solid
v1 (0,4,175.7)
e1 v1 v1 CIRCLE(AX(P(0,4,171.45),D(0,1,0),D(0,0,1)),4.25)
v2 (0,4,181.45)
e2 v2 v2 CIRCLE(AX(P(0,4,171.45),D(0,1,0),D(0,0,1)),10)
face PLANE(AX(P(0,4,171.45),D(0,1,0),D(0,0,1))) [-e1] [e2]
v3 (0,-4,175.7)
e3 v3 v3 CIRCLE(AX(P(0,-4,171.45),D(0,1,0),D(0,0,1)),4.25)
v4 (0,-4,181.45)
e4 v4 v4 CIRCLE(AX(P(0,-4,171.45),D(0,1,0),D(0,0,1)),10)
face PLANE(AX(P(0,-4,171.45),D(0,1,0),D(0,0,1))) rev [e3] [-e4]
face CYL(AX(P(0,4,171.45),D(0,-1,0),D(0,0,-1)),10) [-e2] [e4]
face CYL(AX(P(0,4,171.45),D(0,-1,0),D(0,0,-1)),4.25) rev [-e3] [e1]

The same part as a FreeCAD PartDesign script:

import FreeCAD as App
import Part
import Sketcher

V = App.Vector
Q = App.Units.Quantity

doc = App.newDocument("Part")
body = doc.addObject("PartDesign::Body", "Body")

# Sketch on XZ plane
sketch1 = body.newObject("Sketcher::SketchObject", "Sketch")
sketch1.AttachmentSupport = (doc.getObject("XZ_Plane"), [""])
sketch1.MapMode = "FlatFace"
sketch1.AttachmentOffset = App.Placement(V(0, 0, 4), App.Rotation())
sketch1.addGeometry(Part.Circle(V(0, 171, 0), V(0, 0, 1), 10), False)
sketch1.addConstraint([
    Sketcher.Constraint("PointOnObject", 0, 3, -2),
    Sketcher.Constraint("Diameter", 0, Q("20 mm")),
    Sketcher.Constraint("DistanceY", -1, 1, 0, 3, Q("171.45 mm")),
])
pad1 = body.newObject("PartDesign::Pad", "Pad")
pad1.Profile = sketch1
pad1.Length = 8
pad1.Reversed = True

# Sketch on XZ plane
sketch2 = body.newObject("Sketcher::SketchObject", "Sketch001")
sketch2.AttachmentSupport = (doc.getObject("XZ_Plane"), [""])
sketch2.MapMode = "FlatFace"
sketch2.AttachmentOffset = App.Placement(V(0, 0, 4), App.Rotation())
sketch2.addGeometry(Part.Circle(V(0, 171.4, 0), V(0, 0, 1), 4.2), False)
sketch2.addConstraint([
    Sketcher.Constraint("PointOnObject", 0, 3, -2),
    Sketcher.Constraint("Diameter", 0, Q("8.5 mm")),
    Sketcher.Constraint("DistanceY", -1, 1, 0, 3, Q("171.45 mm")),
])
pocket1 = body.newObject("PartDesign::Pocket", "Pocket")
pocket1.Profile = sketch2
pocket1.Length = 8

doc.recompute()
